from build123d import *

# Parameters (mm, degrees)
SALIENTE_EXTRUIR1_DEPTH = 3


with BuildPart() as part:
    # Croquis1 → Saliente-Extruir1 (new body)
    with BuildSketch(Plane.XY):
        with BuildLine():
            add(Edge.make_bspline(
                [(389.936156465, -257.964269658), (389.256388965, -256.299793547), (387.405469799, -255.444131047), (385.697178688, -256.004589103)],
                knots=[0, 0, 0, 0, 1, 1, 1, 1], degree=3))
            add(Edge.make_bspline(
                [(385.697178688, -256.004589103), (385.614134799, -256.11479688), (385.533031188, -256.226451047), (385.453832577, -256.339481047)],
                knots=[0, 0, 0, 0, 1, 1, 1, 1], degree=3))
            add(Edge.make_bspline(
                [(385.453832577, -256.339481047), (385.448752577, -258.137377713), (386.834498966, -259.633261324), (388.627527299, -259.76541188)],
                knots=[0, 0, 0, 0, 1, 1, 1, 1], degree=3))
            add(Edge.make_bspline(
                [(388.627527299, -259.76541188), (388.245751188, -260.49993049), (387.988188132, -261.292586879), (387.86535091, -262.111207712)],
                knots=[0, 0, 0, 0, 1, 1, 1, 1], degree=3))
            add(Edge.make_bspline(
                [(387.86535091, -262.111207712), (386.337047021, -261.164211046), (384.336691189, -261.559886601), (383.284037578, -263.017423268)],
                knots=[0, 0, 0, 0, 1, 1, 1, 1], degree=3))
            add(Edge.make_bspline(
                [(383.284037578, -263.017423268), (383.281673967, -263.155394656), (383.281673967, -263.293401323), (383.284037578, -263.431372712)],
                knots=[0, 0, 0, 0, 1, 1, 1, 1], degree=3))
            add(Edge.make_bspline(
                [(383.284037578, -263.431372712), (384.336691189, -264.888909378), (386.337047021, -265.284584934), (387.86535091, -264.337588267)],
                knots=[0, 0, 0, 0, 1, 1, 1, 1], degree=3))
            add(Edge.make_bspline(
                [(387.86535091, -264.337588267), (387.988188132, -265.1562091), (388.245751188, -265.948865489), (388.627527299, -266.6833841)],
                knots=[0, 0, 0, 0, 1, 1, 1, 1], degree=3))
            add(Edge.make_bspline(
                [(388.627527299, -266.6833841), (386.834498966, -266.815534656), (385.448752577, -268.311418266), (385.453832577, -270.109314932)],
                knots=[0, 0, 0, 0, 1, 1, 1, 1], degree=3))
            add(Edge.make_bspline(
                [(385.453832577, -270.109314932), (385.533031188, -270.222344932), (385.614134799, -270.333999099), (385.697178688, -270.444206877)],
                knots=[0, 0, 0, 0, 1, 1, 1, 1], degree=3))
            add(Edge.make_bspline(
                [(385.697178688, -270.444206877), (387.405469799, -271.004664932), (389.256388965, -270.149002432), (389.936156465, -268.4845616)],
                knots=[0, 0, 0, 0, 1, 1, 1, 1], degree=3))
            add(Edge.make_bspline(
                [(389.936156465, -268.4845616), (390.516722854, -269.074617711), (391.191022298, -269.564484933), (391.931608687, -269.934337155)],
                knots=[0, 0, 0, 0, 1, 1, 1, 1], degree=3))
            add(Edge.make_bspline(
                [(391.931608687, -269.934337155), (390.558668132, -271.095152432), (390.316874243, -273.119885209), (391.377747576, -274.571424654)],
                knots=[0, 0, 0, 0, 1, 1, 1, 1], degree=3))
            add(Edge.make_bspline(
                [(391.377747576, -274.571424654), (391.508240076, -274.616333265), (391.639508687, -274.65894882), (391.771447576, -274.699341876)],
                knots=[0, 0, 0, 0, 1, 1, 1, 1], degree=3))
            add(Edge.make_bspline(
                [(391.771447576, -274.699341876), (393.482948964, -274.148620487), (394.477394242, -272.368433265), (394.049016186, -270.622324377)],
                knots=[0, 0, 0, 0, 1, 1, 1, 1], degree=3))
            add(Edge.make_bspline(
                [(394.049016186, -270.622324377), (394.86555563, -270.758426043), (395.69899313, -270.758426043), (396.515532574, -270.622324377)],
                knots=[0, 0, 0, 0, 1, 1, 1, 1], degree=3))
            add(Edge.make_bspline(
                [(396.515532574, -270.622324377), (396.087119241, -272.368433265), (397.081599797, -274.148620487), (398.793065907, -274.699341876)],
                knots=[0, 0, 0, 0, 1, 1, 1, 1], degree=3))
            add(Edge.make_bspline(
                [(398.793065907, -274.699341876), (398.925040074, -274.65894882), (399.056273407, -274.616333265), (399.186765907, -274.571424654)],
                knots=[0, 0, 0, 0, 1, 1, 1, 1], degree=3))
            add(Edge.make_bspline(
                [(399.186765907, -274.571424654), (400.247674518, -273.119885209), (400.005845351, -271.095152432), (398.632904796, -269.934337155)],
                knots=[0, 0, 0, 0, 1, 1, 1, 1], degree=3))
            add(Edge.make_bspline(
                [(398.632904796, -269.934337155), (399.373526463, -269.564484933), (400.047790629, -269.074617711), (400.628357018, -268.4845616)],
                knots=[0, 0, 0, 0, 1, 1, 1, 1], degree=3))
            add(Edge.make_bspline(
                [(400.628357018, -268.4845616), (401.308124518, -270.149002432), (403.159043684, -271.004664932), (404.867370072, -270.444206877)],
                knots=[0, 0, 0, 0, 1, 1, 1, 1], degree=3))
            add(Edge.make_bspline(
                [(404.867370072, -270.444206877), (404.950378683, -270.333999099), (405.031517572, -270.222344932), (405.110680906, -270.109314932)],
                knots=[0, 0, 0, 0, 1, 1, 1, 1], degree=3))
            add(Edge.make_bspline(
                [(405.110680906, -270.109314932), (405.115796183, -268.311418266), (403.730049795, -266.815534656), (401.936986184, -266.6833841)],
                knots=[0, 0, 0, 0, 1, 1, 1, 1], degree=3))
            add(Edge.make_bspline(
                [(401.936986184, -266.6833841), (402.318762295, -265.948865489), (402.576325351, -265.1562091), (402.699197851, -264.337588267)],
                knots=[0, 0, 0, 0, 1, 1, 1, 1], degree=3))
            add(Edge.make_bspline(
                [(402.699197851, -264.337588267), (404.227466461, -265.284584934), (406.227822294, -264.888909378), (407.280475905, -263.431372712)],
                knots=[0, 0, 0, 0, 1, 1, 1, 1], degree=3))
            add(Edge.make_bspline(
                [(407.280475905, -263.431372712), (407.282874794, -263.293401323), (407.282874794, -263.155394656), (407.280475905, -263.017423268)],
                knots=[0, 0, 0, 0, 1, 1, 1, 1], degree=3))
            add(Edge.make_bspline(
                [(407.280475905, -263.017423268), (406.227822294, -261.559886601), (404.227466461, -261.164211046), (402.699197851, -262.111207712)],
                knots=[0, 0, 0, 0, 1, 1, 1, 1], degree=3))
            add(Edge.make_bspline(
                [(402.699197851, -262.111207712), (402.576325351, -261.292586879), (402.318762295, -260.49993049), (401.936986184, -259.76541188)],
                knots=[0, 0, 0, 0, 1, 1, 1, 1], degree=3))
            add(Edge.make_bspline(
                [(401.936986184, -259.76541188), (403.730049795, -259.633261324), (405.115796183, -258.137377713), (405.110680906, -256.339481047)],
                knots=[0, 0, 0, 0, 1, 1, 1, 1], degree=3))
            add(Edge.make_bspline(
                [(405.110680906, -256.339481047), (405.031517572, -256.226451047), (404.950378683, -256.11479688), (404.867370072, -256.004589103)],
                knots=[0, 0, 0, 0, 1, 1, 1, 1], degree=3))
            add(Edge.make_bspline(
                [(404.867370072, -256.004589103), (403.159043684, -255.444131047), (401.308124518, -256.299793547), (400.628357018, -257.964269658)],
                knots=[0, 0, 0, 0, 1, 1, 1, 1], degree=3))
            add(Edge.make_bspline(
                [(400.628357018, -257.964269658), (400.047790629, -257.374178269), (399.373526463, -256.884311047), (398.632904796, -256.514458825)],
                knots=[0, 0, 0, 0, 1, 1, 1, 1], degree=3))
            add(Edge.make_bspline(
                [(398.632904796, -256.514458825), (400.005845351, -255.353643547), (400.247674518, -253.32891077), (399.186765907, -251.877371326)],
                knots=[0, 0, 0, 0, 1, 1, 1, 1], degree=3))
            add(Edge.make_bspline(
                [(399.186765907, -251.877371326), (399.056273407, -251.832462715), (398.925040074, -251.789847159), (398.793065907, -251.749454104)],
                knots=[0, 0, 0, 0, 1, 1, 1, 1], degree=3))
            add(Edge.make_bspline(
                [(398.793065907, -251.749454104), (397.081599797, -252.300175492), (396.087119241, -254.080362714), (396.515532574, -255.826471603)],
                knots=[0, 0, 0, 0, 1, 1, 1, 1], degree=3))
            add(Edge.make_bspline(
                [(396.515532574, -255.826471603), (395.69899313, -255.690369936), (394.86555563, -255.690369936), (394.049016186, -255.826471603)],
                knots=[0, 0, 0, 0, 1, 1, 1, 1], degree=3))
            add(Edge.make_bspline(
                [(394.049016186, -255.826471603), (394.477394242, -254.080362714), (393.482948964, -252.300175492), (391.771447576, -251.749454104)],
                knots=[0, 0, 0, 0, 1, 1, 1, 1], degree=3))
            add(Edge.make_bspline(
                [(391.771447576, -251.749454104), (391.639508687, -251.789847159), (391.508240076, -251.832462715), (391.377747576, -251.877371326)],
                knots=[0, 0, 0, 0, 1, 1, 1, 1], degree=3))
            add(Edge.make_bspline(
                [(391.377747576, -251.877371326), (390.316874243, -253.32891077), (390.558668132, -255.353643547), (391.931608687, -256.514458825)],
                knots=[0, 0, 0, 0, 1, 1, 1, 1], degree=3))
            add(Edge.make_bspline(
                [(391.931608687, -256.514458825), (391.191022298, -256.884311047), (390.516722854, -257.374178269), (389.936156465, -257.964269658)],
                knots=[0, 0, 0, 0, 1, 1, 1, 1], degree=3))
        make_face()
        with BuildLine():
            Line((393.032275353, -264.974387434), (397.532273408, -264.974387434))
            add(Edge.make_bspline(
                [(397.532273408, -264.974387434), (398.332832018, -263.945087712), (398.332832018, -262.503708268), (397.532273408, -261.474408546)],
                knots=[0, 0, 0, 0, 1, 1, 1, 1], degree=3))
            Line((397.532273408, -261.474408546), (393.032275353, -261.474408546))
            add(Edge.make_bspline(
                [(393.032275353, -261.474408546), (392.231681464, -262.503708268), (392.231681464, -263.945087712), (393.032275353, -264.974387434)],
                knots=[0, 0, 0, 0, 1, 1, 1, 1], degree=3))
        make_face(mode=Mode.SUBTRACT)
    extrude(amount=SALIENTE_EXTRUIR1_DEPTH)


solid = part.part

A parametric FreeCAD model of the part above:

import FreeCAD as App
import Part
import Sketcher
from FreeCAD import Vector

doc = App.newDocument("Part")
body = doc.addObject("PartDesign::Body", "Body")

# Sketch on XY plane
sketch1 = body.newObject("Sketcher::SketchObject", "Sketch")
sketch1.AttachmentSupport = (doc.getObject("XY_Plane"), [""])
sketch1.MapMode = "FlatFace"
sketch1.addGeometry(Part.BSplineCurve([Vector(389.936156, -257.96427, 0), Vector(389.256389, -256.299794, 0), Vector(387.40547, -255.444131, 0), Vector(385.697179, -256.004589, 0)], [4, 4], [0, 1], False, 3, [1, 1, 1, 1], False), False)
sketch1.addGeometry(Part.BSplineCurve([Vector(385.697179, -256.004589, 0), Vector(385.614135, -256.114797, 0), Vector(385.533031, -256.226451, 0), Vector(385.453833, -256.339481, 0)], [4, 4], [0, 1], False, 3, [1, 1, 1, 1], False), False)
sketch1.addGeometry(Part.BSplineCurve([Vector(385.453833, -256.339481, 0), Vector(385.448753, -258.137378, 0), Vector(386.834499, -259.633261, 0), Vector(388.627527, -259.765412, 0)], [4, 4], [0, 1], False, 3, [1, 1, 1, 1], False), False)
sketch1.addGeometry(Part.BSplineCurve([Vector(388.627527, -259.765412, 0), Vector(388.245751, -260.49993, 0), Vector(387.988188, -261.292587, 0), Vector(387.865351, -262.111208, 0)], [4, 4], [0, 1], False, 3, [1, 1, 1, 1], False), False)
sketch1.addGeometry(Part.BSplineCurve([Vector(387.865351, -262.111208, 0), Vector(386.337047, -261.164211, 0), Vector(384.336691, -261.559887, 0), Vector(383.284038, -263.017423, 0)], [4, 4], [0, 1], False, 3, [1, 1, 1, 1], False), False)
sketch1.addGeometry(Part.BSplineCurve([Vector(383.284038, -263.017423, 0), Vector(383.281674, -263.155395, 0), Vector(383.281674, -263.293401, 0), Vector(383.284038, -263.431373, 0)], [4, 4], [0, 1], False, 3, [1, 1, 1, 1], False), False)
sketch1.addGeometry(Part.BSplineCurve([Vector(383.284038, -263.431373, 0), Vector(384.336691, -264.888909, 0), Vector(386.337047, -265.284585, 0), Vector(387.865351, -264.337588, 0)], [4, 4], [0, 1], False, 3, [1, 1, 1, 1], False), False)
sketch1.addGeometry(Part.BSplineCurve([Vector(387.865351, -264.337588, 0), Vector(387.988188, -265.156209, 0), Vector(388.245751, -265.948865, 0), Vector(388.627527, -266.683384, 0)], [4, 4], [0, 1], False, 3, [1, 1, 1, 1], False), False)
sketch1.addGeometry(Part.BSplineCurve([Vector(388.627527, -266.683384, 0), Vector(386.834499, -266.815535, 0), Vector(385.448753, -268.311418, 0), Vector(385.453833, -270.109315, 0)], [4, 4], [0, 1], False, 3, [1, 1, 1, 1], False), False)
sketch1.addGeometry(Part.BSplineCurve([Vector(385.453833, -270.109315, 0), Vector(385.533031, -270.222345, 0), Vector(385.614135, -270.333999, 0), Vector(385.697179, -270.444207, 0)], [4, 4], [0, 1], False, 3, [1, 1, 1, 1], False), False)
sketch1.addGeometry(Part.BSplineCurve([Vector(385.697179, -270.444207, 0), Vector(387.40547, -271.004665, 0), Vector(389.256389, -270.149002, 0), Vector(389.936156, -268.484562, 0)], [4, 4], [0, 1], False, 3, [1, 1, 1, 1], False), False)
sketch1.addGeometry(Part.BSplineCurve([Vector(389.936156, -268.484562, 0), Vector(390.516723, -269.074618, 0), Vector(391.191022, -269.564485, 0), Vector(391.931609, -269.934337, 0)], [4, 4], [0, 1], False, 3, [1, 1, 1, 1], False), False)
sketch1.addGeometry(Part.BSplineCurve([Vector(391.931609, -269.934337, 0), Vector(390.558668, -271.095152, 0), Vector(390.316874, -273.119885, 0), Vector(391.377748, -274.571425, 0)], [4, 4], [0, 1], False, 3, [1, 1, 1, 1], False), False)
sketch1.addGeometry(Part.BSplineCurve([Vector(391.377748, -274.571425, 0), Vector(391.50824, -274.616333, 0), Vector(391.639509, -274.658949, 0), Vector(391.771448, -274.699342, 0)], [4, 4], [0, 1], False, 3, [1, 1, 1, 1], False), False)
sketch1.addGeometry(Part.BSplineCurve([Vector(391.771448, -274.699342, 0), Vector(393.482949, -274.14862, 0), Vector(394.477394, -272.368433, 0), Vector(394.049016, -270.622324, 0)], [4, 4], [0, 1], False, 3, [1, 1, 1, 1], False), False)
sketch1.addGeometry(Part.BSplineCurve([Vector(394.049016, -270.622324, 0), Vector(394.865556, -270.758426, 0), Vector(395.698993, -270.758426, 0), Vector(396.515533, -270.622324, 0)], [4, 4], [0, 1], False, 3, [1, 1, 1, 1], False), False)
sketch1.addGeometry(Part.BSplineCurve([Vector(396.515533, -270.622324, 0), Vector(396.087119, -272.368433, 0), Vector(397.0816, -274.14862, 0), Vector(398.793066, -274.699342, 0)], [4, 4], [0, 1], False, 3, [1, 1, 1, 1], False), False)
sketch1.addGeometry(Part.BSplineCurve([Vector(398.793066, -274.699342, 0), Vector(398.92504, -274.658949, 0), Vector(399.056273, -274.616333, 0), Vector(399.186766, -274.571425, 0)], [4, 4], [0, 1], False, 3, [1, 1, 1, 1], False), False)
sketch1.addGeometry(Part.BSplineCurve([Vector(399.186766, -274.571425, 0), Vector(400.247675, -273.119885, 0), Vector(400.005845, -271.095152, 0), Vector(398.632905, -269.934337, 0)], [4, 4], [0, 1], False, 3, [1, 1, 1, 1], False), False)
sketch1.addGeometry(Part.BSplineCurve([Vector(398.632905, -269.934337, 0), Vector(399.373526, -269.564485, 0), Vector(400.047791, -269.074618, 0), Vector(400.628357, -268.484562, 0)], [4, 4], [0, 1], False, 3, [1, 1, 1, 1], False), False)
sketch1.addGeometry(Part.BSplineCurve([Vector(400.628357, -268.484562, 0), Vector(401.308125, -270.149002, 0), Vector(403.159044, -271.004665, 0), Vector(404.86737, -270.444207, 0)], [4, 4], [0, 1], False, 3, [1, 1, 1, 1], False), False)
sketch1.addGeometry(Part.BSplineCurve([Vector(404.86737, -270.444207, 0), Vector(404.950379, -270.333999, 0), Vector(405.031518, -270.222345, 0), Vector(405.110681, -270.109315, 0)], [4, 4], [0, 1], False, 3, [1, 1, 1, 1], False), False)
sketch1.addGeometry(Part.BSplineCurve([Vector(405.110681, -270.109315, 0), Vector(405.115796, -268.311418, 0), Vector(403.73005, -266.815535, 0), Vector(401.936986, -266.683384, 0)], [4, 4], [0, 1], False, 3, [1, 1, 1, 1], False), False)
sketch1.addGeometry(Part.BSplineCurve([Vector(401.936986, -266.683384, 0), Vector(402.318762, -265.948865, 0), Vector(402.576325, -265.156209, 0), Vector(402.699198, -264.337588, 0)], [4, 4], [0, 1], False, 3, [1, 1, 1, 1], False), False)
sketch1.addGeometry(Part.BSplineCurve([Vector(402.699198, -264.337588, 0), Vector(404.227466, -265.284585, 0), Vector(406.227822, -264.888909, 0), Vector(407.280476, -263.431373, 0)], [4, 4], [0, 1], False, 3, [1, 1, 1, 1], False), False)
sketch1.addGeometry(Part.BSplineCurve([Vector(407.280476, -263.431373, 0), Vector(407.282875, -263.293401, 0), Vector(407.282875, -263.155395, 0), Vector(407.280476, -263.017423, 0)], [4, 4], [0, 1], False, 3, [1, 1, 1, 1], False), False)
sketch1.addGeometry(Part.BSplineCurve([Vector(407.280476, -263.017423, 0), Vector(406.227822, -261.559887, 0), Vector(404.227466, -261.164211, 0), Vector(402.699198, -262.111208, 0)], [4, 4], [0, 1], False, 3, [1, 1, 1, 1], False), False)
sketch1.addGeometry(Part.BSplineCurve([Vector(402.699198, -262.111208, 0), Vector(402.576325, -261.292587, 0), Vector(402.318762, -260.49993, 0), Vector(401.936986, -259.765412, 0)], [4, 4], [0, 1], False, 3, [1, 1, 1, 1], False), False)
sketch1.addGeometry(Part.BSplineCurve([Vector(401.936986, -259.765412, 0), Vector(403.73005, -259.633261, 0), Vector(405.115796, -258.137378, 0), Vector(405.110681, -256.339481, 0)], [4, 4], [0, 1], False, 3, [1, 1, 1, 1], False), False)
sketch1.addGeometry(Part.BSplineCurve([Vector(405.110681, -256.339481, 0), Vector(405.031518, -256.226451, 0), Vector(404.950379, -256.114797, 0), Vector(404.86737, -256.004589, 0)], [4, 4], [0, 1], False, 3, [1, 1, 1, 1], False), False)
sketch1.addGeometry(Part.BSplineCurve([Vector(404.86737, -256.004589, 0), Vector(403.159044, -255.444131, 0), Vector(401.308125, -256.299794, 0), Vector(400.628357, -257.96427, 0)], [4, 4], [0, 1], False, 3, [1, 1, 1, 1], False), False)
sketch1.addGeometry(Part.BSplineCurve([Vector(400.628357, -257.96427, 0), Vector(400.047791, -257.374178, 0), Vector(399.373526, -256.884311, 0), Vector(398.632905, -256.514459, 0)], [4, 4], [0, 1], False, 3, [1, 1, 1, 1], False), False)
sketch1.addGeometry(Part.BSplineCurve([Vector(398.632905, -256.514459, 0), Vector(400.005845, -255.353644, 0), Vector(400.247675, -253.328911, 0), Vector(399.186766, -251.877371, 0)], [4, 4], [0, 1], False, 3, [1, 1, 1, 1], False), False)
sketch1.addGeometry(Part.BSplineCurve([Vector(399.186766, -251.877371, 0), Vector(399.056273, -251.832463, 0), Vector(398.92504, -251.789847, 0), Vector(398.793066, -251.749454, 0)], [4, 4], [0, 1], False, 3, [1, 1, 1, 1], False), False)
sketch1.addGeometry(Part.BSplineCurve([Vector(398.793066, -251.749454, 0), Vector(397.0816, -252.300175, 0), Vector(396.087119, -254.080363, 0), Vector(396.515533, -255.826472, 0)], [4, 4], [0, 1], False, 3, [1, 1, 1, 1], False), False)
sketch1.addGeometry(Part.BSplineCurve([Vector(396.515533, -255.826472, 0), Vector(395.698993, -255.69037, 0), Vector(394.865556, -255.69037, 0), Vector(394.049016, -255.826472, 0)], [4, 4], [0, 1], False, 3, [1, 1, 1, 1], False), False)
sketch1.addGeometry(Part.BSplineCurve([Vector(394.049016, -255.826472, 0), Vector(394.477394, -254.080363, 0), Vector(393.482949, -252.300175, 0), Vector(391.771448, -251.749454, 0)], [4, 4], [0, 1], False, 3, [1, 1, 1, 1], False), False)
sketch1.addGeometry(Part.BSplineCurve([Vector(391.771448, -251.749454, 0), Vector(391.639509, -251.789847, 0), Vector(391.50824, -251.832463, 0), Vector(391.377748, -251.877371, 0)], [4, 4], [0, 1], False, 3, [1, 1, 1, 1], False), False)
sketch1.addGeometry(Part.BSplineCurve([Vector(391.377748, -251.877371, 0), Vector(390.316874, -253.328911, 0), Vector(390.558668, -255.353644, 0), Vector(391.931609, -256.514459, 0)], [4, 4], [0, 1], False, 3, [1, 1, 1, 1], False), False)
sketch1.addGeometry(Part.BSplineCurve([Vector(391.931609, -256.514459, 0), Vector(391.191022, -256.884311, 0), Vector(390.516723, -257.374178, 0), Vector(389.936156, -257.96427, 0)], [4, 4], [0, 1], False, 3, [1, 1, 1, 1], False), False)
sketch1.addGeometry(Part.LineSegment(Vector(397.532273, -264.974387, 0), Vector(393.032275, -264.974387, 0)), False)
sketch1.addGeometry(Part.BSplineCurve([Vector(393.032275, -261.474409, 0), Vector(392.231681, -262.503708, 0), Vector(392.231681, -263.945088, 0), Vector(393.032275, -264.974387, 0)], [4, 4], [0, 1], False, 3, [1, 1, 1, 1], False), False)
sketch1.addGeometry(Part.LineSegment(Vector(393.032275, -261.474409, 0), Vector(397.532273, -261.474409, 0)), False)
sketch1.addGeometry(Part.BSplineCurve([Vector(397.532273, -264.974387, 0), Vector(398.332832, -263.945088, 0), Vector(398.332832, -262.503708, 0), Vector(397.532273, -261.474409, 0)], [4, 4], [0, 1], False, 3, [1, 1, 1, 1], False), False)
sketch1.addConstraint(Sketcher.Constraint("Block", 0))
sketch1.addConstraint(Sketcher.Constraint("Block", 1))
sketch1.addConstraint(Sketcher.Constraint("Block", 2))
sketch1.addConstraint(Sketcher.Constraint("Block", 3))
sketch1.addConstraint(Sketcher.Constraint("Block", 4))
sketch1.addConstraint(Sketcher.Constraint("Block", 5))
sketch1.addConstraint(Sketcher.Constraint("Block", 6))
sketch1.addConstraint(Sketcher.Constraint("Block", 7))
sketch1.addConstraint(Sketcher.Constraint("Block", 8))
sketch1.addConstraint(Sketcher.Constraint("Block", 9))
sketch1.addConstraint(Sketcher.Constraint("Block", 10))
sketch1.addConstraint(Sketcher.Constraint("Block", 11))
sketch1.addConstraint(Sketcher.Constraint("Block", 12))
sketch1.addConstraint(Sketcher.Constraint("Block", 13))
sketch1.addConstraint(Sketcher.Constraint("Block", 14))
sketch1.addConstraint(Sketcher.Constraint("Block", 15))
sketch1.addConstraint(Sketcher.Constraint("Block", 16))
sketch1.addConstraint(Sketcher.Constraint("Block", 17))
sketch1.addConstraint(Sketcher.Constraint("Block", 18))
sketch1.addConstraint(Sketcher.Constraint("Block", 19))
sketch1.addConstraint(Sketcher.Constraint("Block", 20))
sketch1.addConstraint(Sketcher.Constraint("Block", 21))
sketch1.addConstraint(Sketcher.Constraint("Block", 22))
sketch1.addConstraint(Sketcher.Constraint("Block", 23))
sketch1.addConstraint(Sketcher.Constraint("Block", 24))
sketch1.addConstraint(Sketcher.Constraint("Block", 25))
sketch1.addConstraint(Sketcher.Constraint("Block", 26))
sketch1.addConstraint(Sketcher.Constraint("Block", 27))
sketch1.addConstraint(Sketcher.Constraint("Block", 28))
sketch1.addConstraint(Sketcher.Constraint("Block", 29))
sketch1.addConstraint(Sketcher.Constraint("Block", 30))
sketch1.addConstraint(Sketcher.Constraint("Block", 31))
sketch1.addConstraint(Sketcher.Constraint("Block", 32))
sketch1.addConstraint(Sketcher.Constraint("Block", 33))
sketch1.addConstraint(Sketcher.Constraint("Block", 34))
sketch1.addConstraint(Sketcher.Constraint("Block", 35))
sketch1.addConstraint(Sketcher.Constraint("Block", 36))
sketch1.addConstraint(Sketcher.Constraint("Block", 37))
sketch1.addConstraint(Sketcher.Constraint("Block", 38))
sketch1.addConstraint(Sketcher.Constraint("Block", 39))
sketch1.addConstraint(Sketcher.Constraint("Block", 41))
sketch1.addConstraint(Sketcher.Constraint("Block", 43))
sketch1.addConstraint(Sketcher.Constraint("Coincident", 40, 2, 41, 2))
sketch1.addConstraint(Sketcher.Constraint("Coincident", 41, 1, 42, 1))
sketch1.addConstraint(Sketcher.Constraint("Coincident", 42, 2, 43, 2))
sketch1.addConstraint(Sketcher.Constraint("Coincident", 43, 1, 40, 1))
pad1 = body.newObject("PartDesign::Pad", "Pad")
pad1.Profile = sketch1
pad1.Length = 3

doc.recompute()
